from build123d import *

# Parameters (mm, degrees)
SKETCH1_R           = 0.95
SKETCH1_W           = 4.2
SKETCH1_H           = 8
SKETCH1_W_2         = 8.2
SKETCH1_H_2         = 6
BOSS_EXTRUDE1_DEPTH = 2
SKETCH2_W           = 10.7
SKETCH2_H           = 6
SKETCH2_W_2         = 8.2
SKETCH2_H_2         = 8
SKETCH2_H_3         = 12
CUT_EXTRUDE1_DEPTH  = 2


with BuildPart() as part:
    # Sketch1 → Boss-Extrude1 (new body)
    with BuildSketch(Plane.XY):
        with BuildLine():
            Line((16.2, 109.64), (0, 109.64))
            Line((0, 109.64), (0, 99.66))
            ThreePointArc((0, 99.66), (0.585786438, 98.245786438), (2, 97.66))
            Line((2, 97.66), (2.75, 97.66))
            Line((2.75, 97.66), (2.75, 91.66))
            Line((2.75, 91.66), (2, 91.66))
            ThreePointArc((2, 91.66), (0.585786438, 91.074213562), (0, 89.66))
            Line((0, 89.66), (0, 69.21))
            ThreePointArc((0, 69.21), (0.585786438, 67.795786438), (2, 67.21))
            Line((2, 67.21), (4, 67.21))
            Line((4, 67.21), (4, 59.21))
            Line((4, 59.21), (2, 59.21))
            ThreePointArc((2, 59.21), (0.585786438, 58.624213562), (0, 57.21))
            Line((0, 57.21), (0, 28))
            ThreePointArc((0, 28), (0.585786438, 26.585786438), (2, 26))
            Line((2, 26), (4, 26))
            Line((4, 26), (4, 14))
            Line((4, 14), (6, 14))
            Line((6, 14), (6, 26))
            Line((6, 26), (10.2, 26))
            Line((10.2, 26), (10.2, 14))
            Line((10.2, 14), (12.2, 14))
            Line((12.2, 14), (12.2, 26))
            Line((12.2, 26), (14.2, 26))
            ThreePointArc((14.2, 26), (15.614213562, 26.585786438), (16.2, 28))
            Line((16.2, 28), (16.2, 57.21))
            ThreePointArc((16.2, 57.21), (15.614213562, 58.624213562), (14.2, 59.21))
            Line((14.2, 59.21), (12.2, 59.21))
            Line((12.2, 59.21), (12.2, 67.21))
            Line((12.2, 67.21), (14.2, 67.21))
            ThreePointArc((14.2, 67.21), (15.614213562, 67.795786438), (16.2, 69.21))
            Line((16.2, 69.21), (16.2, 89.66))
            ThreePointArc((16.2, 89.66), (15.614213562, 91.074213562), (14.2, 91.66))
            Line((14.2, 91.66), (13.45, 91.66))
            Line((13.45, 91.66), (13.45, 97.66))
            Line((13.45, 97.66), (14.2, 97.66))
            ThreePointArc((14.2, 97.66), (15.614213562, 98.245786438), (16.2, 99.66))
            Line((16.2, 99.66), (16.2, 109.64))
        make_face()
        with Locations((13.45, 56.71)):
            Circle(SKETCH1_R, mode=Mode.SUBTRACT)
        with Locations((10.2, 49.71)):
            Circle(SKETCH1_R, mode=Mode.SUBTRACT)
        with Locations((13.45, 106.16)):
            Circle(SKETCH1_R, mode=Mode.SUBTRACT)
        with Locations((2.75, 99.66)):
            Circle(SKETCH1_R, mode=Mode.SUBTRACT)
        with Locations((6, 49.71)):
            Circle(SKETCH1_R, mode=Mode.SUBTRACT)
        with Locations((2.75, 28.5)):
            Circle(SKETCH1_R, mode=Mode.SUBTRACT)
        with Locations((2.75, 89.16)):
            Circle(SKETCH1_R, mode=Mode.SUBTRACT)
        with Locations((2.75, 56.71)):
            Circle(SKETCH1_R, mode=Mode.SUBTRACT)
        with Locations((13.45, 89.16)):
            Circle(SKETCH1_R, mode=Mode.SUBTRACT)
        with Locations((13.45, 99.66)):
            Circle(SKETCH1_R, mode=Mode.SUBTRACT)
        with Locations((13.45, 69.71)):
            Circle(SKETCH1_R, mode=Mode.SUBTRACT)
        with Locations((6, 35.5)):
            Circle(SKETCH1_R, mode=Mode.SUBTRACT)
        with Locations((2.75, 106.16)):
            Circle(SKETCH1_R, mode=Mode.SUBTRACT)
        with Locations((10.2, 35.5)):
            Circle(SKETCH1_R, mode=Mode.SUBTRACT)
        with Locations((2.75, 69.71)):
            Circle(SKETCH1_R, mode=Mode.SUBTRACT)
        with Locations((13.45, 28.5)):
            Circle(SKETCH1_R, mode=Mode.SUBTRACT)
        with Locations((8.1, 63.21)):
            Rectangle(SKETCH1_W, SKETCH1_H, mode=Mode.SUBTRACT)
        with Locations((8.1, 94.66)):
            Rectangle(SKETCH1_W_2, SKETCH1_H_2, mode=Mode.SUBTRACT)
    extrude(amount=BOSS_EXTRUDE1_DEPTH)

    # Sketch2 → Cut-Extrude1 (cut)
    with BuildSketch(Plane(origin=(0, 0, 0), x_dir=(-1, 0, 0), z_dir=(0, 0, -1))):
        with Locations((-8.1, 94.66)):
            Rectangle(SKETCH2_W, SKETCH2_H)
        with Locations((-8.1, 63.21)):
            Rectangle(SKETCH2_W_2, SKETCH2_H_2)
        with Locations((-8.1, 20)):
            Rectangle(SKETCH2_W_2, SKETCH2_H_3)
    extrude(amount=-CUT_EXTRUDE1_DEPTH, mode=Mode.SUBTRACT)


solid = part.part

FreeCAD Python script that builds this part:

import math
import FreeCAD as App
import Part
import Sketcher
from FreeCAD import Vector


def add_polygon(sketch, points):
    """Adds a closed chain of lines whose ends are joined by coincident constraints."""
    first, n = sketch.GeometryCount, len(points)
    for a, b in zip(points, points[1:] + points[:1]):
        sketch.addGeometry(Part.LineSegment(App.Vector(*a, 0), App.Vector(*b, 0)), False)
    for i in range(n):
        sketch.addConstraint(Sketcher.Constraint("Coincident", first + i, 2, first + (i + 1) % n, 1))

doc = App.newDocument("Part")
body = doc.addObject("PartDesign::Body", "Body")
body.AllowCompound = True

sketch1 = body.newObject("Sketcher::SketchObject", "Sketch")
sketch1.AttachmentSupport = (doc.getObject("XY_Plane"), [""])
sketch1.MapMode = "FlatFace"
sketch1.addGeometry(Part.LineSegment(Vector(16.2, 109.6, 0), Vector(0, 109.6, 0)), False)
sketch1.addGeometry(Part.LineSegment(Vector(0, 109.6, 0), Vector(0, 99.7, 0)), False)
sketch1.addGeometry(Part.ArcOfCircle(Part.Circle(Vector(2, 99.7, 0), Vector(0, 0, 1), 2), math.radians(-180), math.radians(-90)), False)
sketch1.addGeometry(Part.LineSegment(Vector(2, 97.7, 0), Vector(2.8, 97.7, 0)), False)
sketch1.addGeometry(Part.LineSegment(Vector(2.8, 97.7, 0), Vector(2.8, 91.7, 0)), False)
sketch1.addGeometry(Part.LineSegment(Vector(2.8, 91.7, 0), Vector(2, 91.7, 0)), False)
sketch1.addGeometry(Part.ArcOfCircle(Part.Circle(Vector(2, 89.7, 0), Vector(0, 0, 1), 2), math.radians(90), math.radians(180)), False)
sketch1.addGeometry(Part.LineSegment(Vector(0, 89.7, 0), Vector(0, 69.2, 0)), False)
sketch1.addGeometry(Part.ArcOfCircle(Part.Circle(Vector(2, 69.2, 0), Vector(0, 0, 1), 2), math.radians(-180), math.radians(-90)), False)
sketch1.addGeometry(Part.LineSegment(Vector(2, 67.2, 0), Vector(4, 67.2, 0)), False)
sketch1.addGeometry(Part.LineSegment(Vector(4, 67.2, 0), Vector(4, 59.2, 0)), False)
sketch1.addGeometry(Part.LineSegment(Vector(4, 59.2, 0), Vector(2, 59.2, 0)), False)
sketch1.addGeometry(Part.ArcOfCircle(Part.Circle(Vector(2, 57.2, 0), Vector(0, 0, 1), 2), math.radians(90), math.radians(180)), False)
sketch1.addGeometry(Part.LineSegment(Vector(0, 57.2, 0), Vector(0, 28, 0)), False)
sketch1.addGeometry(Part.ArcOfCircle(Part.Circle(Vector(2, 28, 0), Vector(0, 0, 1), 2), math.radians(-180), math.radians(-90)), False)
sketch1.addGeometry(Part.LineSegment(Vector(2, 26, 0), Vector(4, 26, 0)), False)
sketch1.addGeometry(Part.LineSegment(Vector(4, 26, 0), Vector(4, 14, 0)), False)
sketch1.addGeometry(Part.LineSegment(Vector(4, 14, 0), Vector(6, 14, 0)), False)
sketch1.addGeometry(Part.LineSegment(Vector(6, 14, 0), Vector(6, 26, 0)), False)
sketch1.addGeometry(Part.LineSegment(Vector(6, 26, 0), Vector(10.2, 26, 0)), False)
sketch1.addGeometry(Part.LineSegment(Vector(10.2, 26, 0), Vector(10.2, 14, 0)), False)
sketch1.addGeometry(Part.LineSegment(Vector(10.2, 14, 0), Vector(12.2, 14, 0)), False)
sketch1.addGeometry(Part.LineSegment(Vector(12.2, 14, 0), Vector(12.2, 26, 0)), False)
sketch1.addGeometry(Part.LineSegment(Vector(12.2, 26, 0), Vector(14.2, 26, 0)), False)
sketch1.addGeometry(Part.ArcOfCircle(Part.Circle(Vector(14.2, 28, 0), Vector(0, 0, 1), 2), math.radians(-90), math.radians(0)), False)
sketch1.addGeometry(Part.LineSegment(Vector(16.2, 28, 0), Vector(16.2, 57.2, 0)), False)
sketch1.addGeometry(Part.ArcOfCircle(Part.Circle(Vector(14.2, 57.2, 0), Vector(0, 0, 1), 2), math.radians(0), math.radians(90)), False)
sketch1.addGeometry(Part.LineSegment(Vector(14.2, 59.2, 0), Vector(12.2, 59.2, 0)), False)
sketch1.addGeometry(Part.LineSegment(Vector(12.2, 59.2, 0), Vector(12.2, 67.2, 0)), False)
sketch1.addGeometry(Part.LineSegment(Vector(12.2, 67.2, 0), Vector(14.2, 67.2, 0)), False)
sketch1.addGeometry(Part.ArcOfCircle(Part.Circle(Vector(14.2, 69.2, 0), Vector(0, 0, 1), 2), math.radians(-90), math.radians(0)), False)
sketch1.addGeometry(Part.LineSegment(Vector(16.2, 69.2, 0), Vector(16.2, 89.7, 0)), False)
sketch1.addGeometry(Part.ArcOfCircle(Part.Circle(Vector(14.2, 89.7, 0), Vector(0, 0, 1), 2), math.radians(0), math.radians(90)), False)
sketch1.addGeometry(Part.LineSegment(Vector(14.2, 91.7, 0), Vector(13.4, 91.7, 0)), False)
sketch1.addGeometry(Part.LineSegment(Vector(13.4, 91.7, 0), Vector(13.4, 97.7, 0)), False)
sketch1.addGeometry(Part.LineSegment(Vector(13.4, 97.7, 0), Vector(14.2, 97.7, 0)), False)
sketch1.addGeometry(Part.ArcOfCircle(Part.Circle(Vector(14.2, 99.7, 0), Vector(0, 0, 1), 2), math.radians(-90), math.radians(0)), False)
sketch1.addGeometry(Part.LineSegment(Vector(16.2, 99.7, 0), Vector(16.2, 109.6, 0)), False)
sketch1.addGeometry(Part.Circle(Vector(2.8, 28.5, 0), Vector(0, 0, 1), 0.9), False)
sketch1.addGeometry(Part.Circle(Vector(6, 35.5, 0), Vector(0, 0, 1), 0.9), False)
sketch1.addGeometry(Part.Circle(Vector(2.8, 56.7, 0), Vector(0, 0, 1), 0.9), False)
sketch1.addGeometry(Part.Circle(Vector(6, 49.7, 0), Vector(0, 0, 1), 0.9), False)
sketch1.addGeometry(Part.Circle(Vector(10.2, 35.5, 0), Vector(0, 0, 1), 0.9), False)
sketch1.addGeometry(Part.Circle(Vector(13.4, 28.5, 0), Vector(0, 0, 1), 0.9), False)
sketch1.addGeometry(Part.Circle(Vector(10.2, 49.7, 0), Vector(0, 0, 1), 0.9), False)
add_polygon(sketch1, [(10.2, 59.2), (6, 59.2), (6, 67.2), (10.2, 67.2)])
sketch1.addGeometry(Part.Circle(Vector(13.4, 56.7, 0), Vector(0, 0, 1), 0.9), False)
sketch1.addGeometry(Part.Circle(Vector(2.8, 69.7, 0), Vector(0, 0, 1), 0.9), False)
sketch1.addGeometry(Part.Circle(Vector(2.8, 89.2, 0), Vector(0, 0, 1), 0.9), False)
sketch1.addGeometry(Part.Circle(Vector(2.8, 99.7, 0), Vector(0, 0, 1), 0.9), False)
sketch1.addGeometry(Part.Circle(Vector(2.8, 106.2, 0), Vector(0, 0, 1), 0.9), False)
sketch1.addGeometry(Part.Circle(Vector(13.4, 69.7, 0), Vector(0, 0, 1), 0.9), False)
add_polygon(sketch1, [(12.2, 91.7), (4, 91.7), (4, 97.7), (12.2, 97.7)])
sketch1.addGeometry(Part.Circle(Vector(13.4, 89.2, 0), Vector(0, 0, 1), 0.9), False)
sketch1.addGeometry(Part.Circle(Vector(13.4, 99.7, 0), Vector(0, 0, 1), 0.9), False)
sketch1.addGeometry(Part.Circle(Vector(13.4, 106.2, 0), Vector(0, 0, 1), 0.9), False)
sketch1.addConstraint(Sketcher.Constraint("Coincident", 0, 2, 1, 1))
sketch1.addConstraint(Sketcher.Constraint("Tangent", 1, 2, 2, 1))
sketch1.addConstraint(Sketcher.Constraint("Tangent", 2, 2, 3, 1))
sketch1.addConstraint(Sketcher.Constraint("Coincident", 3, 2, 4, 1))
sketch1.addConstraint(Sketcher.Constraint("Coincident", 4, 2, 5, 1))
sketch1.addConstraint(Sketcher.Constraint("Tangent", 5, 2, 6, 1))
sketch1.addConstraint(Sketcher.Constraint("Tangent", 6, 2, 7, 1))
sketch1.addConstraint(Sketcher.Constraint("Tangent", 7, 2, 8, 1))
sketch1.addConstraint(Sketcher.Constraint("Tangent", 8, 2, 9, 1))
sketch1.addConstraint(Sketcher.Constraint("Coincident", 9, 2, 10, 1))
sketch1.addConstraint(Sketcher.Constraint("Coincident", 10, 2, 11, 1))
sketch1.addConstraint(Sketcher.Constraint("Tangent", 11, 2, 12, 1))
sketch1.addConstraint(Sketcher.Constraint("Tangent", 12, 2, 13, 1))
sketch1.addConstraint(Sketcher.Constraint("Tangent", 13, 2, 14, 1))
sketch1.addConstraint(Sketcher.Constraint("Tangent", 14, 2, 15, 1))
sketch1.addConstraint(Sketcher.Constraint("Coincident", 15, 2, 16, 1))
sketch1.addConstraint(Sketcher.Constraint("Coincident", 16, 2, 17, 1))
sketch1.addConstraint(Sketcher.Constraint("Coincident", 17, 2, 18, 1))
sketch1.addConstraint(Sketcher.Constraint("Coincident", 18, 2, 19, 1))
sketch1.addConstraint(Sketcher.Constraint("Coincident", 19, 2, 20, 1))
sketch1.addConstraint(Sketcher.Constraint("Coincident", 20, 2, 21, 1))
sketch1.addConstraint(Sketcher.Constraint("Coincident", 21, 2, 22, 1))
sketch1.addConstraint(Sketcher.Constraint("Coincident", 22, 2, 23, 1))
sketch1.addConstraint(Sketcher.Constraint("Tangent", 23, 2, 24, 1))
sketch1.addConstraint(Sketcher.Constraint("Tangent", 24, 2, 25, 1))
sketch1.addConstraint(Sketcher.Constraint("Tangent", 25, 2, 26, 1))
sketch1.addConstraint(Sketcher.Constraint("Tangent", 26, 2, 27, 1))
sketch1.addConstraint(Sketcher.Constraint("Coincident", 27, 2, 28, 1))
sketch1.addConstraint(Sketcher.Constraint("Coincident", 28, 2, 29, 1))
sketch1.addConstraint(Sketcher.Constraint("Tangent", 29, 2, 30, 1))
sketch1.addConstraint(Sketcher.Constraint("Tangent", 30, 2, 31, 1))
sketch1.addConstraint(Sketcher.Constraint("Tangent", 31, 2, 32, 1))
sketch1.addConstraint(Sketcher.Constraint("Tangent", 32, 2, 33, 1))
sketch1.addConstraint(Sketcher.Constraint("Coincident", 33, 2, 34, 1))
sketch1.addConstraint(Sketcher.Constraint("Coincident", 34, 2, 35, 1))
sketch1.addConstraint(Sketcher.Constraint("Tangent", 35, 2, 36, 1))
sketch1.addConstraint(Sketcher.Constraint("Tangent", 36, 2, 37, 1))
sketch1.addConstraint(Sketcher.Constraint("Coincident", 37, 2, 0, 1))
sketch1.addConstraint(Sketcher.Constraint("Horizontal", 0))
sketch1.addConstraint(Sketcher.Constraint("Vertical", 1))
sketch1.addConstraint(Sketcher.Constraint("Horizontal", 3))
sketch1.addConstraint(Sketcher.Constraint("Vertical", 4))
sketch1.addConstraint(Sketcher.Constraint("Horizontal", 5))
sketch1.addConstraint(Sketcher.Constraint("Vertical", 7))
sketch1.addConstraint(Sketcher.Constraint("Horizontal", 9))
sketch1.addConstraint(Sketcher.Constraint("Vertical", 10))
sketch1.addConstraint(Sketcher.Constraint("Horizontal", 11))
sketch1.addConstraint(Sketcher.Constraint("Vertical", 13))
sketch1.addConstraint(Sketcher.Constraint("Horizontal", 15))
sketch1.addConstraint(Sketcher.Constraint("Vertical", 16))
sketch1.addConstraint(Sketcher.Constraint("Horizontal", 17))
sketch1.addConstraint(Sketcher.Constraint("Vertical", 18))
sketch1.addConstraint(Sketcher.Constraint("Horizontal", 19))
sketch1.addConstraint(Sketcher.Constraint("Vertical", 20))
sketch1.addConstraint(Sketcher.Constraint("Horizontal", 21))
sketch1.addConstraint(Sketcher.Constraint("Vertical", 22))
sketch1.addConstraint(Sketcher.Constraint("Horizontal", 23))
sketch1.addConstraint(Sketcher.Constraint("Vertical", 25))
sketch1.addConstraint(Sketcher.Constraint("Horizontal", 27))
sketch1.addConstraint(Sketcher.Constraint("Vertical", 28))
sketch1.addConstraint(Sketcher.Constraint("Horizontal", 29))
sketch1.addConstraint(Sketcher.Constraint("Vertical", 31))
sketch1.addConstraint(Sketcher.Constraint("Horizontal", 33))
sketch1.addConstraint(Sketcher.Constraint("Vertical", 34))
sketch1.addConstraint(Sketcher.Constraint("Horizontal", 35))
sketch1.addConstraint(Sketcher.Constraint("Vertical", 37))
sketch1.addConstraint(Sketcher.Constraint("Horizontal", 45))
sketch1.addConstraint(Sketcher.Constraint("Vertical", 46))
sketch1.addConstraint(Sketcher.Constraint("Horizontal", 47))
sketch1.addConstraint(Sketcher.Constraint("Vertical", 48))
sketch1.addConstraint(Sketcher.Constraint("Horizontal", 55))
sketch1.addConstraint(Sketcher.Constraint("Vertical", 56))
sketch1.addConstraint(Sketcher.Constraint("Horizontal", 57))
sketch1.addConstraint(Sketcher.Constraint("Vertical", 58))
sketch1.addConstraint(Sketcher.Constraint("Equal", 2, 6))
sketch1.addConstraint(Sketcher.Constraint("Equal", 6, 8))
sketch1.addConstraint(Sketcher.Constraint("Equal", 8, 12))
sketch1.addConstraint(Sketcher.Constraint("Equal", 12, 14))
sketch1.addConstraint(Sketcher.Constraint("Equal", 14, 24))
sketch1.addConstraint(Sketcher.Constraint("Equal", 24, 26))
sketch1.addConstraint(Sketcher.Constraint("Equal", 26, 30))
sketch1.addConstraint(Sketcher.Constraint("Equal", 30, 32))
sketch1.addConstraint(Sketcher.Constraint("Equal", 32, 36))
sketch1.addConstraint(Sketcher.Constraint("Equal", 38, 39))
sketch1.addConstraint(Sketcher.Constraint("Equal", 39, 40))
sketch1.addConstraint(Sketcher.Constraint("Equal", 40, 41))
sketch1.addConstraint(Sketcher.Constraint("Equal", 41, 42))
sketch1.addConstraint(Sketcher.Constraint("Equal", 42, 43))
sketch1.addConstraint(Sketcher.Constraint("Equal", 43, 44))
sketch1.addConstraint(Sketcher.Constraint("Equal", 44, 49))
sketch1.addConstraint(Sketcher.Constraint("Equal", 49, 50))
sketch1.addConstraint(Sketcher.Constraint("Equal", 50, 51))
sketch1.addConstraint(Sketcher.Constraint("Equal", 51, 52))
sketch1.addConstraint(Sketcher.Constraint("Equal", 52, 53))
sketch1.addConstraint(Sketcher.Constraint("Equal", 53, 54))
sketch1.addConstraint(Sketcher.Constraint("Equal", 54, 59))
sketch1.addConstraint(Sketcher.Constraint("Equal", 59, 60))
sketch1.addConstraint(Sketcher.Constraint("Equal", 60, 61))
sketch1.addConstraint(Sketcher.Constraint("PointOnObject", 0, 2, -2))
sketch1.addConstraint(Sketcher.Constraint("PointOnObject", 6, 2, -2))
sketch1.addConstraint(Sketcher.Constraint("PointOnObject", 12, 2, -2))
sketch1.addConstraint(Sketcher.Constraint("Horizontal", 14, 3, 24, 3))
sketch1.addConstraint(Sketcher.Constraint("Horizontal", 12, 3, 26, 3))
sketch1.addConstraint(Sketcher.Constraint("Horizontal", 8, 3, 30, 3))
sketch1.addConstraint(Sketcher.Constraint("Horizontal", 6, 3, 32, 3))
sketch1.addConstraint(Sketcher.Constraint("Horizontal", 2, 3, 36, 3))
sketch1.addConstraint(Sketcher.Constraint("Horizontal", 39, 3, 42, 3))
sketch1.addConstraint(Sketcher.Constraint("Horizontal", 38, 3, 43, 3))
sketch1.addConstraint(Sketcher.Constraint("Horizontal", 41, 3, 44, 3))
sketch1.addConstraint(Sketcher.Constraint("Horizontal", 40, 3, 49, 3))
sketch1.addConstraint(Sketcher.Constraint("Horizontal", 36, 3, 52, 3))
sketch1.addConstraint(Sketcher.Constraint("Horizontal", 50, 3, 54, 3))
sketch1.addConstraint(Sketcher.Constraint("Horizontal", 51, 3, 59, 3))
sketch1.addConstraint(Sketcher.Constraint("Horizontal", 52, 3, 60, 3))
sketch1.addConstraint(Sketcher.Constraint("Horizontal", 53, 3, 61, 3))
sketch1.addConstraint(Sketcher.Constraint("Horizontal", 15, 2, 18, 2))
sketch1.addConstraint(Sketcher.Constraint("Horizontal", 17, 2, 20, 2))
sketch1.addConstraint(Sketcher.Constraint("Horizontal", 27, 2, 45, 2))
sketch1.addConstraint(Sketcher.Constraint("Horizontal", 29, 2, 46, 2))
sketch1.addConstraint(Sketcher.Constraint("Horizontal", 33, 2, 55, 2))
sketch1.addConstraint(Sketcher.Constraint("Horizontal", 35, 2, 56, 2))
sketch1.addConstraint(Sketcher.Constraint("Vertical", 26, 3, 30, 3))
sketch1.addConstraint(Sketcher.Constraint("Vertical", 32, 3, 36, 3))
sketch1.addConstraint(Sketcher.Constraint("Vertical", 38, 3, 40, 3))
sketch1.addConstraint(Sketcher.Constraint("Vertical", 39, 3, 41, 3))
sketch1.addConstraint(Sketcher.Constraint("Vertical", 42, 3, 44, 3))
sketch1.addConstraint(Sketcher.Constraint("Vertical", 43, 3, 49, 3))
sketch1.addConstraint(Sketcher.Constraint("Vertical", 40, 3, 50, 3))
sketch1.addConstraint(Sketcher.Constraint("Vertical", 50, 3, 51, 3))
sketch1.addConstraint(Sketcher.Constraint("Vertical", 51, 3, 52, 3))
sketch1.addConstraint(Sketcher.Constraint("Vertical", 52, 3, 53, 3))
sketch1.addConstraint(Sketcher.Constraint("Vertical", 49, 3, 54, 3))
sketch1.addConstraint(Sketcher.Constraint("Vertical", 54, 3, 59, 3))
sketch1.addConstraint(Sketcher.Constraint("Vertical", 59, 3, 60, 3))
sketch1.addConstraint(Sketcher.Constraint("Vertical", 60, 3, 61, 3))
sketch1.addConstraint(Sketcher.Constraint("Vertical", 53, 3, 3, 2))
sketch1.addConstraint(Sketcher.Constraint("Vertical", 10, 2, 15, 2))
sketch1.addConstraint(Sketcher.Constraint("Vertical", 41, 3, 17, 2))
sketch1.addConstraint(Sketcher.Constraint("Vertical", 44, 3, 19, 2))
sketch1.addConstraint(Sketcher.Constraint("Vertical", 22, 2, 27, 2))
sketch1.addConstraint(Sketcher.Constraint("Vertical", 61, 3, 33, 2))
sketch1.addConstraint(Sketcher.Constraint("Vertical", 18, 2, 45, 2))
sketch1.addConstraint(Sketcher.Constraint("Vertical", 20, 2, 47, 2))
sketch1.addConstraint(Sketcher.Constraint("Vertical", 16, 2, 55, 2))
sketch1.addConstraint(Sketcher.Constraint("Vertical", 28, 2, 57, 2))
sketch1.addConstraint(Sketcher.Constraint("Equal", 15, 17))
sketch1.addConstraint(Sketcher.Constraint("Equal", 17, 21))
sketch1.addConstraint(Sketcher.Constraint("Equal", 21, 23))
sketch1.addConstraint(Sketcher.Constraint("Equal", 5, 33))
sketch1.addConstraint(Sketcher.Constraint("Radius", 2, 2.0))
sketch1.addConstraint(Sketcher.Constraint("Diameter", 38, 1.9))
sketch1.addConstraint(Sketcher.Constraint("DistanceX", 9, 1, 9, 2, 2.0))
sketch1.addConstraint(Sketcher.Constraint("DistanceY", 4, 2, 4, 1, 6.0))
sketch1.addConstraint(Sketcher.Constraint("DistanceY", 10, 2, 10, 1, 8.0))
sketch1.addConstraint(Sketcher.Constraint("DistanceY", 16, 2, 16, 1, 12.0))
sketch1.addConstraint(Sketcher.Constraint("DistanceX", 0, 2, 0, 1, 16.2))
sketch1.addConstraint(Sketcher.Constraint("DistanceY", -1, 1, 14, 3, 28.0))
sketch1.addConstraint(Sketcher.Constraint("DistanceX", 3, 1, 3, 2, 0.75))
sketch1.addConstraint(Sketcher.Constraint("DistanceY", 1, 2, 1, 1, 9.98))
sketch1.addConstraint(Sketcher.Constraint("DistanceY", 7, 2, 7, 1, 20.45))
sketch1.addConstraint(Sketcher.Constraint("DistanceY", 13, 2, 13, 1, 29.21))
sketch1.addConstraint(Sketcher.Constraint("DistanceY", -1, 1, 38, 3, 28.5))
sketch1.addConstraint(Sketcher.Constraint("DistanceY", -1, 1, 39, 3, 35.5))
sketch1.addConstraint(Sketcher.Constraint("DistanceY", -1, 1, 40, 3, 56.71))
sketch1.addConstraint(Sketcher.Constraint("DistanceY", -1, 1, 41, 3, 49.71))
sketch1.addConstraint(Sketcher.Constraint("DistanceY", -1, 1, 50, 3, 69.71))
sketch1.addConstraint(Sketcher.Constraint("DistanceY", -1, 1, 51, 3, 89.16))
sketch1.addConstraint(Sketcher.Constraint("DistanceY", -1, 1, 53, 3, 106.16))
pad1 = body.newObject("PartDesign::Pad", "Pad")
pad1.Profile = sketch1
pad1.Length = 2

sketch2 = body.newObject("Sketcher::SketchObject", "Sketch001")
sketch2.AttachmentSupport = (doc.getObject("XY_Plane"), [""])
sketch2.MapMode = "FlatFace"
add_polygon(sketch2, [(13, 98), (13, 92), (3, 92), (3, 98)])
add_polygon(sketch2, [(12, 67), (12, 59), (4, 59), (4, 67)])
add_polygon(sketch2, [(12, 26), (12, 14), (4, 14), (4, 26)])
sketch2.addConstraint(Sketcher.Constraint("Vertical", 0))
sketch2.addConstraint(Sketcher.Constraint("Horizontal", 1))
sketch2.addConstraint(Sketcher.Constraint("Vertical", 2))
sketch2.addConstraint(Sketcher.Constraint("Horizontal", 3))
sketch2.addConstraint(Sketcher.Constraint("Vertical", 4))
sketch2.addConstraint(Sketcher.Constraint("Horizontal", 5))
sketch2.addConstraint(Sketcher.Constraint("Vertical", 6))
sketch2.addConstraint(Sketcher.Constraint("Horizontal", 7))
sketch2.addConstraint(Sketcher.Constraint("Vertical", 8))
sketch2.addConstraint(Sketcher.Constraint("Horizontal", 9))
sketch2.addConstraint(Sketcher.Constraint("Vertical", 10))
sketch2.addConstraint(Sketcher.Constraint("Horizontal", 11))
sketch2.addConstraint(Sketcher.Constraint("Vertical", 7, 2, 8, 2))
sketch2.addConstraint(Sketcher.Constraint("Vertical", 6, 2, 9, 2))
sketch2.addConstraint(Sketcher.Constraint("DistanceY", 0, 2, 0, 1, 6.0))
sketch2.addConstraint(Sketcher.Constraint("DistanceY", 4, 2, 4, 1, 8.0))
sketch2.addConstraint(Sketcher.Constraint("DistanceY", 8, 2, 8, 1, 12.0))
sketch2.addConstraint(Sketcher.Constraint("DistanceX", 1, 2, 1, 1, 10.7))
sketch2.addConstraint(Sketcher.Constraint("DistanceX", 5, 2, 5, 1, 8.2))
sketch2.addConstraint(Sketcher.Constraint("DistanceX", -1, 1, 5, 2, 4.0))
sketch2.addConstraint(Sketcher.Constraint("DistanceY", -1, 1, 8, 2, 14.0))
sketch2.addConstraint(Sketcher.Constraint("DistanceX", -1, 1, 0, 2, 13.45))
sketch2.addConstraint(Sketcher.Constraint("DistanceY", -1, 1, 0, 2, 91.66))
sketch2.addConstraint(Sketcher.Constraint("DistanceY", -1, 1, 4, 2, 59.21))
pocket1 = body.newObject("PartDesign::Pocket", "Pocket")
pocket1.Profile = sketch2
pocket1.Length = 2
pocket1.Reversed = True

doc.recompute()
